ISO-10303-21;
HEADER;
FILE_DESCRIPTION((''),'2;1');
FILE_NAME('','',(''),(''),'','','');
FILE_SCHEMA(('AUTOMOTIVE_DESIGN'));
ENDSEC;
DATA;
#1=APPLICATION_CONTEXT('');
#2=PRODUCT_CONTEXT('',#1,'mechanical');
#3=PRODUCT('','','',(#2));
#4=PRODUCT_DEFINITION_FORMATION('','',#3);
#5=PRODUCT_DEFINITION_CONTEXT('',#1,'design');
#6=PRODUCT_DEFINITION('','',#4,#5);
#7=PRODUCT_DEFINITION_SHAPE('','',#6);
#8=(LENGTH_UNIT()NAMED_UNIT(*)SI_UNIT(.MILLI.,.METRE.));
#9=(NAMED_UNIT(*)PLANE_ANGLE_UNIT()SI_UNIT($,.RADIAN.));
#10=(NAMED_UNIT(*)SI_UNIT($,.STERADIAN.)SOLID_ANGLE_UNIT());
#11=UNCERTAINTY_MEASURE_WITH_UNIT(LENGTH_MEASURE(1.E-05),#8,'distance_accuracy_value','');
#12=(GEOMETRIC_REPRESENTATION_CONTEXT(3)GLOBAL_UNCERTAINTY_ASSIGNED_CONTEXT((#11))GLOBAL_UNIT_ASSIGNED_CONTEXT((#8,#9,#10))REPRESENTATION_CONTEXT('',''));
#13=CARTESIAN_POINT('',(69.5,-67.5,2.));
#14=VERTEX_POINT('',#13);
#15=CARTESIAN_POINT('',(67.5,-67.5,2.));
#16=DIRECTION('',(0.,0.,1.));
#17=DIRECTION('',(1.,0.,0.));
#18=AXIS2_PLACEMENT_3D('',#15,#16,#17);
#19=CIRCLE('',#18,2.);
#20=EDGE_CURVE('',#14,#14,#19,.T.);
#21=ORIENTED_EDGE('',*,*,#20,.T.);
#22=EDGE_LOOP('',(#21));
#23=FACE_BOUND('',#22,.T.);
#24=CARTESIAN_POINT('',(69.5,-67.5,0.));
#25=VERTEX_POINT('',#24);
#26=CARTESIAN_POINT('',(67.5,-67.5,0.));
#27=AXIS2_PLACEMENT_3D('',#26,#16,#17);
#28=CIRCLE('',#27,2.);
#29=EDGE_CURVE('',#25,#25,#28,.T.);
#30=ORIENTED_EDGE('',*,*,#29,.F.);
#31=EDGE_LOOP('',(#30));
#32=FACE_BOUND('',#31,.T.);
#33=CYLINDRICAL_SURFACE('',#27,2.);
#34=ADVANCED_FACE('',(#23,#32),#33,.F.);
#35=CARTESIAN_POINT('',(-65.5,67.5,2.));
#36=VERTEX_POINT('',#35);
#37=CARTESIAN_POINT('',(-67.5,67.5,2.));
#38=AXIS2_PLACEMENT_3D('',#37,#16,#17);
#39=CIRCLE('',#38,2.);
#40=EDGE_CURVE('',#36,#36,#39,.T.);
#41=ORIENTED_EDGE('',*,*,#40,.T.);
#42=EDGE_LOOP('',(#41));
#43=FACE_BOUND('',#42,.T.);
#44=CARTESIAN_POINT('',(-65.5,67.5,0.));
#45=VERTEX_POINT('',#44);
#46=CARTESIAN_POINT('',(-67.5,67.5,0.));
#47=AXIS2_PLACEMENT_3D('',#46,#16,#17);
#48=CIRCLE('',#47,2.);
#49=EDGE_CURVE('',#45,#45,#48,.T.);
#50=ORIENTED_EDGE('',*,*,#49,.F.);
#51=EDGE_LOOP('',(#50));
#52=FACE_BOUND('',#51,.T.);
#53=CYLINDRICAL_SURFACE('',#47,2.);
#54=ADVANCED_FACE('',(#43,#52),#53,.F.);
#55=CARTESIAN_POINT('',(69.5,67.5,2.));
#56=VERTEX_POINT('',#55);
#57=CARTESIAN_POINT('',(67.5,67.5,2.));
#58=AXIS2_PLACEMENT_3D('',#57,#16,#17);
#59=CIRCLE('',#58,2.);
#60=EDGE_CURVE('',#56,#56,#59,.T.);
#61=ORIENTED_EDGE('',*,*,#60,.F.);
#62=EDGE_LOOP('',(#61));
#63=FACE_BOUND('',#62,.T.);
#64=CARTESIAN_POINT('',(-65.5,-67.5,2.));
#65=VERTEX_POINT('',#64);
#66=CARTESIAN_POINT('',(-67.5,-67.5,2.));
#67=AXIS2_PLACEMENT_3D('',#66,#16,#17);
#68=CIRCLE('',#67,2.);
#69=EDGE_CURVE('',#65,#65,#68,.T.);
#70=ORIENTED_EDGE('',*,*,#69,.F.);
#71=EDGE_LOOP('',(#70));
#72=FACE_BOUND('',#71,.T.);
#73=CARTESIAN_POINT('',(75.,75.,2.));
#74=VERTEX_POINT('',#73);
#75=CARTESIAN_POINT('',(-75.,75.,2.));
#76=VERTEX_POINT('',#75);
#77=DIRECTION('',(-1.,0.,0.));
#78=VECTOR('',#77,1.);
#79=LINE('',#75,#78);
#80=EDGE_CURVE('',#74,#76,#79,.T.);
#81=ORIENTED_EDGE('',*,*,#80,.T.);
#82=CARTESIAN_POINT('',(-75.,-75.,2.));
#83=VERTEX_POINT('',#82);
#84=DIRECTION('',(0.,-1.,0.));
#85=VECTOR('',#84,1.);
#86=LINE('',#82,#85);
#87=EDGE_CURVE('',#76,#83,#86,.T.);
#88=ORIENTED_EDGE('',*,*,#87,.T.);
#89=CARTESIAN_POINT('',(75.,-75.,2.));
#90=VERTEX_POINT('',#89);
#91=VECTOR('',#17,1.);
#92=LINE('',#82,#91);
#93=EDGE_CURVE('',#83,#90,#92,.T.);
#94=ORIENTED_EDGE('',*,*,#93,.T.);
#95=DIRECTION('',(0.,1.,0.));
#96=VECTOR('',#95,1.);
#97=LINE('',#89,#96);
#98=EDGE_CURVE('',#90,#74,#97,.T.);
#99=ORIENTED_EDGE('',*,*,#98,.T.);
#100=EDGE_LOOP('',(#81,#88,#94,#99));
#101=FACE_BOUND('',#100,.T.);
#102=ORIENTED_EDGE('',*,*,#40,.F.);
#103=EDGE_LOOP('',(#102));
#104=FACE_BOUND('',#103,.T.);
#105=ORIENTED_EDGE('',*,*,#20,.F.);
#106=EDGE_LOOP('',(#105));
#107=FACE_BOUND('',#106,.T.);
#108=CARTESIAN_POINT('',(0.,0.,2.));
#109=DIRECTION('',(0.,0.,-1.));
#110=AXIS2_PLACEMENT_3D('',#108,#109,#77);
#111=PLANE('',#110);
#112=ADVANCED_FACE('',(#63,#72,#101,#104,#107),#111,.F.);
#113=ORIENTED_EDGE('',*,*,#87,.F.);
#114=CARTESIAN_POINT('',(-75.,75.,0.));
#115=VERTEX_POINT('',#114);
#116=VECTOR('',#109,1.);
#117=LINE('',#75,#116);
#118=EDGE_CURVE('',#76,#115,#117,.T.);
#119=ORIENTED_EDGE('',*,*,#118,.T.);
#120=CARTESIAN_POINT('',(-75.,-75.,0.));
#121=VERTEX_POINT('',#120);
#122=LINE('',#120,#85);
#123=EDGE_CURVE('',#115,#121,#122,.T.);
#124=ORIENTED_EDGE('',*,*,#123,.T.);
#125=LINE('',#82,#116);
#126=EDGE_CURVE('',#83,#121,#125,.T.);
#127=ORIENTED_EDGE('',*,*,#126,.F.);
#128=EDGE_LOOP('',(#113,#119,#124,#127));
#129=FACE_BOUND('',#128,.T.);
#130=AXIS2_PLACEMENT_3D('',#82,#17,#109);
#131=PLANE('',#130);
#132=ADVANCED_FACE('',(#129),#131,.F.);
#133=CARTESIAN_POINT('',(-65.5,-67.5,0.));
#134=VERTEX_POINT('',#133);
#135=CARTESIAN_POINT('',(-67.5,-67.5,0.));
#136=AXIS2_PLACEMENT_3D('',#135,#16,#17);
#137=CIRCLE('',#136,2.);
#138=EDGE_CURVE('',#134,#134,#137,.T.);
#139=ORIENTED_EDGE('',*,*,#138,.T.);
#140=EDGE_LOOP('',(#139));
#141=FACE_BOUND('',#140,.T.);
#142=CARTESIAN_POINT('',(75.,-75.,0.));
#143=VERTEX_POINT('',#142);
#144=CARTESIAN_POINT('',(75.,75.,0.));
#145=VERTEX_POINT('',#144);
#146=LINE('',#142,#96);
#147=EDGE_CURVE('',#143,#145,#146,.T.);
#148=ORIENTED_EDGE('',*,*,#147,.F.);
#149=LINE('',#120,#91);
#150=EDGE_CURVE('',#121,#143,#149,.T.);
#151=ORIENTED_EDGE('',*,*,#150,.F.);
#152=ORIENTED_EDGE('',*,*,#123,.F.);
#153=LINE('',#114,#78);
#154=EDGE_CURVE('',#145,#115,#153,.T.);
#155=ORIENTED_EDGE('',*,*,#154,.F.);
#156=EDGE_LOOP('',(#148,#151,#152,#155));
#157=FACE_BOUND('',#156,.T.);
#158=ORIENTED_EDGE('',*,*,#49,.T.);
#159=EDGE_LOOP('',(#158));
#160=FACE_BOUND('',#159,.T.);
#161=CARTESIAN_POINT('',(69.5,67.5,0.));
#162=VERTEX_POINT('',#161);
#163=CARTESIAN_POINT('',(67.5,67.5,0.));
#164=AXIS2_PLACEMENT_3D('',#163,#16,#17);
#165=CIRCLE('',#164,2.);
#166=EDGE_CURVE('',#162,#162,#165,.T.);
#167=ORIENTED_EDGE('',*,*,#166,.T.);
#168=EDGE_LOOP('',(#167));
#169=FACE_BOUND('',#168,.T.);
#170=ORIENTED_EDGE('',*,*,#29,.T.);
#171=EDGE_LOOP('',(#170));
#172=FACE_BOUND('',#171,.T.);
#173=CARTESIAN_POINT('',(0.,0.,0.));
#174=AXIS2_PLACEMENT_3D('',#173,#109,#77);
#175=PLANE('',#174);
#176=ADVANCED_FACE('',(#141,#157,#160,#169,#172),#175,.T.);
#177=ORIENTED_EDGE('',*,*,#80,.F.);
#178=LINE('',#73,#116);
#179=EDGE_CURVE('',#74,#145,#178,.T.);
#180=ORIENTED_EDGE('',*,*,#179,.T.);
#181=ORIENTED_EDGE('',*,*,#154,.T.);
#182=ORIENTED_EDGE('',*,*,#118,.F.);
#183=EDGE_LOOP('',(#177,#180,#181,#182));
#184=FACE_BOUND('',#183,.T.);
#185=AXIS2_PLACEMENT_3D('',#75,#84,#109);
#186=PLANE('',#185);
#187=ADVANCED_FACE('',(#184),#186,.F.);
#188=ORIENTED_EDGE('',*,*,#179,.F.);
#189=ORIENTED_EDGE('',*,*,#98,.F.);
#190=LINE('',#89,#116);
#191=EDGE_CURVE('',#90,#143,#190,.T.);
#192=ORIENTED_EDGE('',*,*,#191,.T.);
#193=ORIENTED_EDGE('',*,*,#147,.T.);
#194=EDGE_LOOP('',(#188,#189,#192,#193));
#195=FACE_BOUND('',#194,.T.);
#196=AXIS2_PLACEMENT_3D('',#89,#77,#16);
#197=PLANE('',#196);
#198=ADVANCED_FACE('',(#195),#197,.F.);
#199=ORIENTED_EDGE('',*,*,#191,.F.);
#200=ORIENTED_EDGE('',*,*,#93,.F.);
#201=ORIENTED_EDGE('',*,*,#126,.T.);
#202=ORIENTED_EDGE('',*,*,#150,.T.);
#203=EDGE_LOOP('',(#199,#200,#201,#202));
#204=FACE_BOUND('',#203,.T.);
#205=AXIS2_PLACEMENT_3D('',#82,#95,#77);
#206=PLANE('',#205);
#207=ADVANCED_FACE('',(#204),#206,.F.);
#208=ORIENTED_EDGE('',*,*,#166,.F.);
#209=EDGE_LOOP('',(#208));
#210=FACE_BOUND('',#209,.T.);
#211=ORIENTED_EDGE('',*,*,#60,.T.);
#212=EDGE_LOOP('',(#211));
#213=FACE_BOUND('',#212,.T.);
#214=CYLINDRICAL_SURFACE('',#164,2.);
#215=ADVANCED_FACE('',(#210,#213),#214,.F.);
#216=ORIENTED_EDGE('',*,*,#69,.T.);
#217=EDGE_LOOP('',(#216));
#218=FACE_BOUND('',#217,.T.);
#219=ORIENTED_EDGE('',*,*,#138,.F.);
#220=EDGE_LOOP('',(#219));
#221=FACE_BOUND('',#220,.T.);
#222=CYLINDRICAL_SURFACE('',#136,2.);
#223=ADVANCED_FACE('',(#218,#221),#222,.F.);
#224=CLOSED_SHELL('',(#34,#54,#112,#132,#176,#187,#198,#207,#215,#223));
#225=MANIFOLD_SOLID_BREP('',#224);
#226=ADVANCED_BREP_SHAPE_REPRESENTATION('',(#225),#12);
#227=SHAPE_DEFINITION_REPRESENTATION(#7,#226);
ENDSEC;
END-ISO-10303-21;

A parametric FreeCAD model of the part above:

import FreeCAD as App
import Part
import Sketcher
from FreeCAD import Vector
Q = App.Units.Quantity


def add_polygon(sketch, points):
    """Adds a closed chain of lines whose ends are joined by coincident constraints."""
    first, n = sketch.GeometryCount, len(points)
    for a, b in zip(points, points[1:] + points[:1]):
        sketch.addGeometry(Part.LineSegment(App.Vector(*a, 0), App.Vector(*b, 0)), False)
    for i in range(n):
        sketch.addConstraint(Sketcher.Constraint("Coincident", first + i, 2, first + (i + 1) % n, 1))

doc = App.newDocument("Part")
body = doc.addObject("PartDesign::Body", "Body")

# Sketch on XY plane
sketch1 = doc.addObject("Sketcher::SketchObject", "Sketch")
body.addObject(sketch1)
sketch1.AttachmentSupport = (doc.XY_Plane, [""])
sketch1.MapMode = "FlatFace"
add_polygon(sketch1, [(-75, 75), (-75, -75), (75, -75), (75, 75)])  # lines 0-3
sketch1.addConstraint([
    Sketcher.Constraint("Vertical", 0),
    Sketcher.Constraint("Horizontal", 1),
    Sketcher.Constraint("Vertical", 2),
    Sketcher.Constraint("Horizontal", 3),
    Sketcher.Constraint("Symmetric", 0, 2, 2, 2, -1, 1),
    Sketcher.Constraint("Equal", 3, 0),
    Sketcher.Constraint("DistanceX", 1, 1, 1, 2, Q("150 mm")),
])
pad1 = doc.addObject("PartDesign::Pad", "Pad")
body.addObject(pad1)
pad1.Profile = sketch1
pad1.Length = 2

# Sketch on XY plane
sketch2 = doc.addObject("Sketcher::SketchObject", "Sketch001")
body.addObject(sketch2)
sketch2.AttachmentSupport = (doc.XY_Plane, [""])
sketch2.MapMode = "FlatFace"
sketch2.AttachmentOffset = App.Placement(Vector(0, 0, 2), App.Rotation())
sketch2.addGeometry([
    Part.Circle(Vector(-67.5, -67.5, 0), Vector(0, 0, 1), 2),
    Part.Circle(Vector(67.5, -67.5, 0), Vector(0, 0, 1), 2),
    Part.Circle(Vector(67.5, 67.5, 0), Vector(0, 0, 1), 2),
    Part.Circle(Vector(-67.5, 67.5, 0), Vector(0, 0, 1), 2),
], False)
sketch2.addConstraint([
    Sketcher.Constraint("Equal", 0, 1),
    Sketcher.Constraint("Equal", 1, 2),
    Sketcher.Constraint("Equal", 2, 3),
    Sketcher.Constraint("Symmetric", 0, 3, 2, 3, -1, 1),
    Sketcher.Constraint("Symmetric", 1, 3, 3, 3, -1, 1),
    Sketcher.Constraint("Symmetric", 0, 3, 1, 3, -2),
    Sketcher.Constraint("Diameter", 0, Q("4 mm")),
    Sketcher.Constraint("DistanceX", 0, 3, 1, 3, Q("135 mm")),
    Sketcher.Constraint("DistanceY", 1, 3, 2, 3, Q("135 mm")),
])
pocket1 = doc.addObject("PartDesign::Pocket", "Pocket")
body.addObject(pocket1)
pocket1.Profile = sketch2
pocket1.Length = 2

doc.recompute()
